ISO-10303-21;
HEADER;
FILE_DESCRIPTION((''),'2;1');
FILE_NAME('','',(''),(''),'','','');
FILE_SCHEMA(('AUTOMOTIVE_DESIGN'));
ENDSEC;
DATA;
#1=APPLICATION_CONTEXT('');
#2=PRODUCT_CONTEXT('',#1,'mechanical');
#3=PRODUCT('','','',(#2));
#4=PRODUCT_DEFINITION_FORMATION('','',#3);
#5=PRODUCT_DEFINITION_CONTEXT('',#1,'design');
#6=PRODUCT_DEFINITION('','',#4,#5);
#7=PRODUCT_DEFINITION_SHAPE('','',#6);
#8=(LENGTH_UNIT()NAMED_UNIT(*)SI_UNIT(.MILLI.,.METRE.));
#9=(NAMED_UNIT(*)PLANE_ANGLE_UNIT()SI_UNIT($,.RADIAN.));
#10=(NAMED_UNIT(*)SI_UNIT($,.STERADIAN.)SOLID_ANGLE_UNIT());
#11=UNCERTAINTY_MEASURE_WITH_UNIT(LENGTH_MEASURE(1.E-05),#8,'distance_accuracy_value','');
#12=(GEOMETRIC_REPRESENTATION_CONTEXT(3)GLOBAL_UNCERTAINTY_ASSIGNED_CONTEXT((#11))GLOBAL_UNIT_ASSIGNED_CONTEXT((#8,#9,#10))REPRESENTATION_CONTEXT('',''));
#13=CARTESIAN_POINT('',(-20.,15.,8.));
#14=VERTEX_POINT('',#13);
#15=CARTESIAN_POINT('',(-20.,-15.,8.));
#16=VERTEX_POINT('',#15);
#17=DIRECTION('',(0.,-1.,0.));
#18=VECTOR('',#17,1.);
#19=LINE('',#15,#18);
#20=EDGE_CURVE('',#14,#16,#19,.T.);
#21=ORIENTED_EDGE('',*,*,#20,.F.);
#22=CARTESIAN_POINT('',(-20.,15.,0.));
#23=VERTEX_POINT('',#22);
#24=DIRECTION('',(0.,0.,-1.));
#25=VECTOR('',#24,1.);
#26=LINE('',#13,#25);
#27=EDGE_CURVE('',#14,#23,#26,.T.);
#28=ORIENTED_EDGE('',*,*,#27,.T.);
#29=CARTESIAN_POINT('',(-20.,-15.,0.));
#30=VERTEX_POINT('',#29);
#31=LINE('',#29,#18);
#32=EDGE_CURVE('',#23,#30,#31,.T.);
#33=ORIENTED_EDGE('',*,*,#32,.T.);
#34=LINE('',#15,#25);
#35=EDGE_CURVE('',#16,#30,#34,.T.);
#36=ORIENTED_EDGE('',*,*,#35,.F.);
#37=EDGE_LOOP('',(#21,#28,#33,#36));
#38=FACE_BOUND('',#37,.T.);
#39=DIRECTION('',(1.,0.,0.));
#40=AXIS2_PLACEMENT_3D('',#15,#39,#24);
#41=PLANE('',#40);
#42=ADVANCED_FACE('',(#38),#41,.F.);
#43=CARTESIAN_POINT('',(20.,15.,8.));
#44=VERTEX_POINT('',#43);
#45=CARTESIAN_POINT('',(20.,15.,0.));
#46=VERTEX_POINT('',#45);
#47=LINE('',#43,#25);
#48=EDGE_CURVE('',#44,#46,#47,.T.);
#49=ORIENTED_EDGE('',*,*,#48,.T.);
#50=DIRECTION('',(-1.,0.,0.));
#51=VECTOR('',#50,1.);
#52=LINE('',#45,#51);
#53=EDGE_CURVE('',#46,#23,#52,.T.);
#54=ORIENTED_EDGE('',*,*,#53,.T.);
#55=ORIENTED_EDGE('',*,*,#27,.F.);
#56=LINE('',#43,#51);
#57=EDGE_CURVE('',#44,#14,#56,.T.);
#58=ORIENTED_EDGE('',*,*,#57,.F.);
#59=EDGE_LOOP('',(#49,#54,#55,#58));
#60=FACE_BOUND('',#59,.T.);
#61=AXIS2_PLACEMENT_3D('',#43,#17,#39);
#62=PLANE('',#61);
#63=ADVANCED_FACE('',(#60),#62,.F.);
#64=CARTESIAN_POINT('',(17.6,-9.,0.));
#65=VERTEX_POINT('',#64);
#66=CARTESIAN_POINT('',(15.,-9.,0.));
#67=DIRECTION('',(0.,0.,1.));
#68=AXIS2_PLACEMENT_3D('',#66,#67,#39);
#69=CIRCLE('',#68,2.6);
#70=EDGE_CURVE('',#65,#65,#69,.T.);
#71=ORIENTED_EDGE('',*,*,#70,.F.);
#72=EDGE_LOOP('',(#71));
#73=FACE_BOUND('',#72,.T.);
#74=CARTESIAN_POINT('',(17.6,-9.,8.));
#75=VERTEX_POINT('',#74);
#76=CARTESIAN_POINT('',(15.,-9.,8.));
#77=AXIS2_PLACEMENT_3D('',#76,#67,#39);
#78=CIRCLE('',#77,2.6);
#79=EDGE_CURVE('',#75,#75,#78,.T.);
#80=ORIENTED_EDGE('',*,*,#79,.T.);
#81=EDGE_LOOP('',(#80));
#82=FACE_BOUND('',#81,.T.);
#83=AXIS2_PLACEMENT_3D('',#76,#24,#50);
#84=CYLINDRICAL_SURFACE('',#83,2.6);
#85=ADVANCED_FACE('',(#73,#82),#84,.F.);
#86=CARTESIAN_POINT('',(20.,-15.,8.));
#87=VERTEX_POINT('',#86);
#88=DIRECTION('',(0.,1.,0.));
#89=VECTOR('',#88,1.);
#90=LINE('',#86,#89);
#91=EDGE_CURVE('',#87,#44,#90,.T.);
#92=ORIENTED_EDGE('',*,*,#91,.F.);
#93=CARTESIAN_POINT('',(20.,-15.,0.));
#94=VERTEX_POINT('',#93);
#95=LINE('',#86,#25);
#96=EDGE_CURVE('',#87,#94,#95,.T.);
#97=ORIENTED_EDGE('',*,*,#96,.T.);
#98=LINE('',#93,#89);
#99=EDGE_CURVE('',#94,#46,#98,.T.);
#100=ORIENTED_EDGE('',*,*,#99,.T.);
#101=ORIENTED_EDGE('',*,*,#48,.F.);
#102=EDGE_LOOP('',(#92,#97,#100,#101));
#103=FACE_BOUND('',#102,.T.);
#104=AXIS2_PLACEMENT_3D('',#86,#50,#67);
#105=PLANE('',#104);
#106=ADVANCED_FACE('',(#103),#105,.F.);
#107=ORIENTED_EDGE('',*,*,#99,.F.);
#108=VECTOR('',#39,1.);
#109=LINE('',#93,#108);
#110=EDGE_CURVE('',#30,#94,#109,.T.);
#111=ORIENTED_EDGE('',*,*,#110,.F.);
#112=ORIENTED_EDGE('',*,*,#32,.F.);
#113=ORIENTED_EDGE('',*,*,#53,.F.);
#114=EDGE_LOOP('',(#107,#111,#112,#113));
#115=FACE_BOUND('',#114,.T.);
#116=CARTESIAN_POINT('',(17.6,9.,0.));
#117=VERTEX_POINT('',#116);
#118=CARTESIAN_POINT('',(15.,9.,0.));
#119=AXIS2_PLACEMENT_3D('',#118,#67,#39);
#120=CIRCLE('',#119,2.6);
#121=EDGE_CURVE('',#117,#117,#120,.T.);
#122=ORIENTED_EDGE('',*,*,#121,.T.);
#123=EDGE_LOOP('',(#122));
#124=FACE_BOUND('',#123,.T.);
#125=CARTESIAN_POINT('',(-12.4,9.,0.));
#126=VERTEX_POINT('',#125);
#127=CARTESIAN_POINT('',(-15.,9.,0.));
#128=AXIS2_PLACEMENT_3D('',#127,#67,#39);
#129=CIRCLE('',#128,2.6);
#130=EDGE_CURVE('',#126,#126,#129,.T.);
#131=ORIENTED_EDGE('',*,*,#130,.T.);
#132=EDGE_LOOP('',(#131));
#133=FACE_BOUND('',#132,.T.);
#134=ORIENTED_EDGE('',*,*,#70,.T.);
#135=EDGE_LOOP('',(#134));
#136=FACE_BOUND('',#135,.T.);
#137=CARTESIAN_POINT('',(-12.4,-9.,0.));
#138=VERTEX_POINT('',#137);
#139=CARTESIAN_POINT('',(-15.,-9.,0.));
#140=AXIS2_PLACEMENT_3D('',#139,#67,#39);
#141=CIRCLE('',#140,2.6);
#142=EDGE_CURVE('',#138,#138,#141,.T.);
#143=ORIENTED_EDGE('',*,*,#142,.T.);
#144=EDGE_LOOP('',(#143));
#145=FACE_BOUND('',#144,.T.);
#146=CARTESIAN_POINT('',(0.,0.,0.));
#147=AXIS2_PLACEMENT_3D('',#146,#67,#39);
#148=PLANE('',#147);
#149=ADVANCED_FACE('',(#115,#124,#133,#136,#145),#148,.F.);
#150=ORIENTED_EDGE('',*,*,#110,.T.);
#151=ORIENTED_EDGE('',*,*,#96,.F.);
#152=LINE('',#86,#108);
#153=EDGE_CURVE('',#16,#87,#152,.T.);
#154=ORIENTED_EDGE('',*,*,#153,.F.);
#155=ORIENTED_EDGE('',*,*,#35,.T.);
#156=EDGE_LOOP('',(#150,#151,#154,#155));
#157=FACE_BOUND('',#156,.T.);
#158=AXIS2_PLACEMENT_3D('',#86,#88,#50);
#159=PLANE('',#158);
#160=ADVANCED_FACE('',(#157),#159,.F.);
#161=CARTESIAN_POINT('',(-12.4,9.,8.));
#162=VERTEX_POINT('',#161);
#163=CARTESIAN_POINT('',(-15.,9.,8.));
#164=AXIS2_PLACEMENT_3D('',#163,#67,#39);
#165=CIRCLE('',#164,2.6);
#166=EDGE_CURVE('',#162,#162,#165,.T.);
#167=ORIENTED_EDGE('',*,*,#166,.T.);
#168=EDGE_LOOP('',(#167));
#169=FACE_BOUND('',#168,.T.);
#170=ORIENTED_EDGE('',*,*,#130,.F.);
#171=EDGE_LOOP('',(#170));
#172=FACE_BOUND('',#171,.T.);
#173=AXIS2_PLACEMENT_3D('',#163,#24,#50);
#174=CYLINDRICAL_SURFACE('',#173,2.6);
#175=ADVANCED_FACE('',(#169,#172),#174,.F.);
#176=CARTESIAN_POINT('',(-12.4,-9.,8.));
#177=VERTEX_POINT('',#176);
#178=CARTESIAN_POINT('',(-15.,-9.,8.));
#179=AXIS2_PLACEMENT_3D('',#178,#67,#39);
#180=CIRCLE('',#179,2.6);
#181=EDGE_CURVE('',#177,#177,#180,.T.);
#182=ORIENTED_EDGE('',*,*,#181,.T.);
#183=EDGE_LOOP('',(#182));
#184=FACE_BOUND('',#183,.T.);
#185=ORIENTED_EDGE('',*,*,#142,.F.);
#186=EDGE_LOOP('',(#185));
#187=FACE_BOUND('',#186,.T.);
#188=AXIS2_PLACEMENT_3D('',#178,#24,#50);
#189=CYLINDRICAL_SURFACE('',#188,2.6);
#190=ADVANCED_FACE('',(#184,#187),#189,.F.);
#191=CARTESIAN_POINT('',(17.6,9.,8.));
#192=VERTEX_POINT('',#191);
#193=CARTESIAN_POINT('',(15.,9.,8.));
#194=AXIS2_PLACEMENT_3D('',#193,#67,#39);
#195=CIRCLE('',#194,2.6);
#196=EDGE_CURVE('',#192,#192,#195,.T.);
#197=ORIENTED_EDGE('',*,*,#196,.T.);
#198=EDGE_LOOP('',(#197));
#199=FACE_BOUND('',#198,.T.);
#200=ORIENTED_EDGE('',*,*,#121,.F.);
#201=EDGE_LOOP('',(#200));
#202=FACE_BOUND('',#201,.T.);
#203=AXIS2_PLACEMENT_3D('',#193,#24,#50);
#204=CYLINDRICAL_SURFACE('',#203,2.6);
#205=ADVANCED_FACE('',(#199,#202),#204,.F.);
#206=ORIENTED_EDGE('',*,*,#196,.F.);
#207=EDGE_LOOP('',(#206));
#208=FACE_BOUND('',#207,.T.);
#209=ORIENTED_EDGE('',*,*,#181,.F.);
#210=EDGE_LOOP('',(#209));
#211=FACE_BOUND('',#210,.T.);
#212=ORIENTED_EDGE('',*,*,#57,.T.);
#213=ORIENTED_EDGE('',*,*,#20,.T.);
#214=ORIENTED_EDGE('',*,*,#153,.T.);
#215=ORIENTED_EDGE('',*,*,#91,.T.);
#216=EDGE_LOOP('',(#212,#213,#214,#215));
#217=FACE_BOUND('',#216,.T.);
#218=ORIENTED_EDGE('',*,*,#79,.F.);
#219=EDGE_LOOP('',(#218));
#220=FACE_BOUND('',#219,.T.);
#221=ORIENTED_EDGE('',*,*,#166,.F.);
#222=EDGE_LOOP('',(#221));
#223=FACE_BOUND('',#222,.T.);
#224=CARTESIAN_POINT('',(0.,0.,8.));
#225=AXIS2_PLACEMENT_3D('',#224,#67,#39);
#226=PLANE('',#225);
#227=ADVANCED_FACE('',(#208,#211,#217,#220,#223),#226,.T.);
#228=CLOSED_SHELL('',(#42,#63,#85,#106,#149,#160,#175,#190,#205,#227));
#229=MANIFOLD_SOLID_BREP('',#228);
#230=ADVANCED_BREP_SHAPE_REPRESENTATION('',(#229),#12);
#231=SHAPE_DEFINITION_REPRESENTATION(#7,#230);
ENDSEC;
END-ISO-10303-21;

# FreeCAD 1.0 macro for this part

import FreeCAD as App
import Part
import Sketcher

V = App.Vector
Q = App.Units.Quantity

doc = App.newDocument("Part")
body = doc.addObject("PartDesign::Body", "Body")

# Sketch on XY plane
sketch1 = body.newObject("Sketcher::SketchObject", "Sketch")
sketch1.AttachmentSupport = (doc.getObject("XY_Plane"), [""])
sketch1.MapMode = "FlatFace"
sketch1.addGeometry(Part.LineSegment(V(-20, 15, 0), V(-20, -15, 0)), False)
sketch1.addGeometry(Part.LineSegment(V(-20, -15, 0), V(20, -15, 0)), False)
sketch1.addGeometry(Part.LineSegment(V(20, -15, 0), V(20, 15, 0)), False)
sketch1.addGeometry(Part.LineSegment(V(20, 15, 0), V(-20, 15, 0)), False)
sketch1.addGeometry(Part.Circle(V(-15, -9, 0), V(0, 0, 1), 2.6), False)
sketch1.addGeometry(Part.Circle(V(15, -9, 0), V(0, 0, 1), 2.6), False)
sketch1.addGeometry(Part.Circle(V(-15, 9, 0), V(0, 0, 1), 2.6), False)
sketch1.addGeometry(Part.Circle(V(15, 9, 0), V(0, 0, 1), 2.6), False)
sketch1.addConstraint(Sketcher.Constraint("Coincident", 0, 2, 1, 1))
sketch1.addConstraint(Sketcher.Constraint("Coincident", 1, 2, 2, 1))
sketch1.addConstraint(Sketcher.Constraint("Coincident", 2, 2, 3, 1))
sketch1.addConstraint(Sketcher.Constraint("Coincident", 3, 2, 0, 1))
sketch1.addConstraint(Sketcher.Constraint("Vertical", 0))
sketch1.addConstraint(Sketcher.Constraint("Horizontal", 1))
sketch1.addConstraint(Sketcher.Constraint("Vertical", 2))
sketch1.addConstraint(Sketcher.Constraint("Horizontal", 3))
sketch1.addConstraint(Sketcher.Constraint("Equal", 4, 5))
sketch1.addConstraint(Sketcher.Constraint("Equal", 5, 6))
sketch1.addConstraint(Sketcher.Constraint("Equal", 6, 7))
sketch1.addConstraint(Sketcher.Constraint("Symmetric", 5, 3, 6, 3, -1, 1))
sketch1.addConstraint(Sketcher.Constraint("Symmetric", 4, 3, 7, 3, -1, 1))
sketch1.addConstraint(Sketcher.Constraint("Symmetric", 0, 2, 2, 2, -1, 1))
sketch1.addConstraint(Sketcher.Constraint("Symmetric", 4, 3, 5, 3, -2))
sketch1.addConstraint(Sketcher.Constraint("Diameter", 4, Q("5.2 mm")))
sketch1.addConstraint(Sketcher.Constraint("DistanceX", 1, 1, 1, 2, Q("40 mm")))
sketch1.addConstraint(Sketcher.Constraint("DistanceY", 0, 2, 0, 1, Q("30 mm")))
sketch1.addConstraint(Sketcher.Constraint("DistanceX", 4, 3, -1, 1, Q("15 mm")))
sketch1.addConstraint(Sketcher.Constraint("DistanceY", 4, 3, -1, 1, Q("9 mm")))
pad1 = body.newObject("PartDesign::Pad", "Pad")
pad1.Profile = sketch1
pad1.Length = 8

doc.recompute()
